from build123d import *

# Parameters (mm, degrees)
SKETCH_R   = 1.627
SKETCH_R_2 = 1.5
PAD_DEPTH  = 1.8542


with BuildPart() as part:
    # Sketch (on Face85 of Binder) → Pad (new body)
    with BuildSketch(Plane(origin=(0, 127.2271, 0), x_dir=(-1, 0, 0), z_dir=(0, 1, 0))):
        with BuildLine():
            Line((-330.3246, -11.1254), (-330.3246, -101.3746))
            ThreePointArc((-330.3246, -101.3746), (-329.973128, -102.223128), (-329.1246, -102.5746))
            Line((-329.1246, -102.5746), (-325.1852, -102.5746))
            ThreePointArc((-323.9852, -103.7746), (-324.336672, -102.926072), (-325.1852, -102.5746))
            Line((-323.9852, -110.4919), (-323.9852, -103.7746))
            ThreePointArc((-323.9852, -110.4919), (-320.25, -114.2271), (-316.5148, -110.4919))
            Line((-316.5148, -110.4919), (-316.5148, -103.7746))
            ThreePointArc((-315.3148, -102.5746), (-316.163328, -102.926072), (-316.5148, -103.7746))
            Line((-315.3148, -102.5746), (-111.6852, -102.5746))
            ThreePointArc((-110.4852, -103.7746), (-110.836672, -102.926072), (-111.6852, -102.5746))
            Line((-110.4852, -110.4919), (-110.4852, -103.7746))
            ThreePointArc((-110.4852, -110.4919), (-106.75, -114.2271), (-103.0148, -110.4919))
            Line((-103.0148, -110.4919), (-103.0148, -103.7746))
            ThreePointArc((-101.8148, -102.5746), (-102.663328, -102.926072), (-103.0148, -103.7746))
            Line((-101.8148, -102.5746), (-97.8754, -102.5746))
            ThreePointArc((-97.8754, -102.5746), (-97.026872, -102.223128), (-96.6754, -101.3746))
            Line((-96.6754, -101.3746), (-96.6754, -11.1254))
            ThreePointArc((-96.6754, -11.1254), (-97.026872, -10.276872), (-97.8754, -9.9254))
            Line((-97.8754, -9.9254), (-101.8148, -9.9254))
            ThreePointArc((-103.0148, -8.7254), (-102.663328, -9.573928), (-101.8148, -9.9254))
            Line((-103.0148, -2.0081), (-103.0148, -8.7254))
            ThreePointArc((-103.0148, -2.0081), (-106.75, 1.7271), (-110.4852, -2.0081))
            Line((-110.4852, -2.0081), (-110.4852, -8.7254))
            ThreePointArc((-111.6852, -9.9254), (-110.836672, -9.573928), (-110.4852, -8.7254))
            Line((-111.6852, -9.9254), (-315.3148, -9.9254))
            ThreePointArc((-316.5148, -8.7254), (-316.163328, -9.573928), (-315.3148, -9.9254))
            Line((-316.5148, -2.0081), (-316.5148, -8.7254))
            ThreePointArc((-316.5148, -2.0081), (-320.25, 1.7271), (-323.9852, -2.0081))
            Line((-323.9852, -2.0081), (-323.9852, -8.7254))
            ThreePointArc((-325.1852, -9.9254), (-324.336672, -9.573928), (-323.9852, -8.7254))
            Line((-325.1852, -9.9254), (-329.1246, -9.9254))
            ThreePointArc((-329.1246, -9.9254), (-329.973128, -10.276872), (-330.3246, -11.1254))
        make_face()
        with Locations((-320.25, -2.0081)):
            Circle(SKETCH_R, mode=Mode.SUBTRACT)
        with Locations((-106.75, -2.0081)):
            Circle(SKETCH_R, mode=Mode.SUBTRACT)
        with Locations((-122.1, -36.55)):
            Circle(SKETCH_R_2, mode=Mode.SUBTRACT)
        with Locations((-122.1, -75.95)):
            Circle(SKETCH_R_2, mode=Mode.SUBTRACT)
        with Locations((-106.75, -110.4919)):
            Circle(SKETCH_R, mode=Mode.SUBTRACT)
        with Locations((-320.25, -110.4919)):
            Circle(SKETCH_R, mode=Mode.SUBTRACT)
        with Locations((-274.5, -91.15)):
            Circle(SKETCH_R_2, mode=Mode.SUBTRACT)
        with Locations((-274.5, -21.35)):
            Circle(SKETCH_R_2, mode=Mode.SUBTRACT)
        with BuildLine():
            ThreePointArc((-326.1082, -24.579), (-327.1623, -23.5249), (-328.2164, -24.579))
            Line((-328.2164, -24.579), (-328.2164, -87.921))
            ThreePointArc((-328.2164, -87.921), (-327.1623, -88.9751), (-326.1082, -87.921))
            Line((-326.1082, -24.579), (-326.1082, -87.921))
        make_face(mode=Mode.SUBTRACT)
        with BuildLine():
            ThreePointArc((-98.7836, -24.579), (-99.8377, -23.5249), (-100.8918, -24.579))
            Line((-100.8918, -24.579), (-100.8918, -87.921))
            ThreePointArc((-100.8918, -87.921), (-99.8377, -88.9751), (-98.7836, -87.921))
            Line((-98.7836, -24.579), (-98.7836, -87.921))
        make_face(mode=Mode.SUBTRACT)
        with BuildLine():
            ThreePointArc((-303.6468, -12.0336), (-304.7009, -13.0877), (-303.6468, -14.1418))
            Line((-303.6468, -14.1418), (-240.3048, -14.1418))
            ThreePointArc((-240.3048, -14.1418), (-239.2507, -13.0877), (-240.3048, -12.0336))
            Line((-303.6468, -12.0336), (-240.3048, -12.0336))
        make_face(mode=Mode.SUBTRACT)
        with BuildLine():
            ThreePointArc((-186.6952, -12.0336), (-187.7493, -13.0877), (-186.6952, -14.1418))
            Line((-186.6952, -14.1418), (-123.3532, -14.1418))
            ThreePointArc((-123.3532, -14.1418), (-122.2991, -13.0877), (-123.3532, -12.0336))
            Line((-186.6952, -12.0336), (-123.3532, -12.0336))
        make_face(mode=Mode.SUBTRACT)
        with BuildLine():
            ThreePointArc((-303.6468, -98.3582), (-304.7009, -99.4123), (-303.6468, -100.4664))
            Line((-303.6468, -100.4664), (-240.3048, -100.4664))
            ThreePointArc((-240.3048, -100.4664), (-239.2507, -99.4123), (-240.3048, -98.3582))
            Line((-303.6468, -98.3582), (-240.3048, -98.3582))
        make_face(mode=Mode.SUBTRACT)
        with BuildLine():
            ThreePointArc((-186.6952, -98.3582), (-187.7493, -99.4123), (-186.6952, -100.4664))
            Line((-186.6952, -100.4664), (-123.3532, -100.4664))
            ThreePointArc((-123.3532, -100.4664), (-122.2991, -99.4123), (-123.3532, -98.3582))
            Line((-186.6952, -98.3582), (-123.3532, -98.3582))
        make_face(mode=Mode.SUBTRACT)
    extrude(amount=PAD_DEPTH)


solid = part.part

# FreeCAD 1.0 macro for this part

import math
import FreeCAD as App
import Part
import Sketcher
Q = App.Units.Quantity

doc = App.newDocument("Part")
params = doc.addObject("Spreadsheet::Sheet", "Params")
for row, (alias, value) in enumerate([
    ("sketch1_diameter", "3 mm"),
    ("sketch1_radius", "1.2 mm"),
    ("pad1_length", "1.8542 mm"),
], start=1):
    params.set(f"A{row}", alias)
    params.set(f"B{row}", "=" + value)
    params.setAlias(f"B{row}", alias)

body = doc.addObject("PartDesign::Body", "Body")

# Sketch on XZ plane
sketch1 = body.newObject("Sketcher::SketchObject", "Sketch")
sketch1.AttachmentSupport = (doc.getObject("XZ_Plane"), [""])
sketch1.MapMode = "FlatFace"
sketch1.AttachmentOffset = App.Placement(App.Vector(0, 0, -127.2271), App.Rotation())
sketch1.addGeometry(Part.LineSegment(App.Vector(330.3, -11.1, 0), App.Vector(330.3, -101.4, 0)), False)
sketch1.addGeometry(Part.ArcOfCircle(Part.Circle(App.Vector(329.1, -101.4, 0), App.Vector(0, 0, 1), 1.2), math.radians(-90), math.radians(0)), False)
sketch1.addGeometry(Part.LineSegment(App.Vector(329.1, -102.6, 0), App.Vector(325.2, -102.6, 0)), False)
sketch1.addGeometry(Part.ArcOfCircle(Part.Circle(App.Vector(325.2, -103.8, 0), App.Vector(0, 0, 1), 1.2), math.radians(90), math.radians(180)), False)
sketch1.addGeometry(Part.LineSegment(App.Vector(324, -103.8, 0), App.Vector(324, -110.5, 0)), False)
sketch1.addGeometry(Part.ArcOfCircle(Part.Circle(App.Vector(320.2, -110.5, 0), App.Vector(0, 0, 1), 3.7), math.radians(180), math.radians(360)), False)
sketch1.addGeometry(Part.LineSegment(App.Vector(316.5, -110.5, 0), App.Vector(316.5, -103.8, 0)), False)
sketch1.addGeometry(Part.ArcOfCircle(Part.Circle(App.Vector(315.3, -103.8, 0), App.Vector(0, 0, 1), 1.2), math.radians(0), math.radians(90)), False)
sketch1.addGeometry(Part.LineSegment(App.Vector(315.3, -102.6, 0), App.Vector(111.7, -102.6, 0)), False)
sketch1.addGeometry(Part.ArcOfCircle(Part.Circle(App.Vector(111.7, -103.8, 0), App.Vector(0, 0, 1), 1.2), math.radians(90), math.radians(180)), False)
sketch1.addGeometry(Part.LineSegment(App.Vector(110.5, -103.8, 0), App.Vector(110.5, -110.5, 0)), False)
sketch1.addGeometry(Part.ArcOfCircle(Part.Circle(App.Vector(106.8, -110.5, 0), App.Vector(0, 0, 1), 3.7), math.radians(180), math.radians(360)), False)
sketch1.addGeometry(Part.LineSegment(App.Vector(103, -110.5, 0), App.Vector(103, -103.8, 0)), False)
sketch1.addGeometry(Part.ArcOfCircle(Part.Circle(App.Vector(101.8, -103.8, 0), App.Vector(0, 0, 1), 1.2), math.radians(0), math.radians(90)), False)
sketch1.addGeometry(Part.LineSegment(App.Vector(101.8, -102.6, 0), App.Vector(97.9, -102.6, 0)), False)
sketch1.addGeometry(Part.ArcOfCircle(Part.Circle(App.Vector(97.9, -101.4, 0), App.Vector(0, 0, 1), 1.2), math.radians(-180), math.radians(-90)), False)
sketch1.addGeometry(Part.LineSegment(App.Vector(96.7, -101.4, 0), App.Vector(96.7, -11.1, 0)), False)
sketch1.addGeometry(Part.ArcOfCircle(Part.Circle(App.Vector(97.9, -11.1, 0), App.Vector(0, 0, 1), 1.2), math.radians(90), math.radians(180)), False)
sketch1.addGeometry(Part.LineSegment(App.Vector(97.9, -9.9, 0), App.Vector(101.8, -9.9, 0)), False)
sketch1.addGeometry(Part.ArcOfCircle(Part.Circle(App.Vector(101.8, -8.7, 0), App.Vector(0, 0, 1), 1.2), math.radians(-90), math.radians(0)), False)
sketch1.addGeometry(Part.LineSegment(App.Vector(103, -8.7, 0), App.Vector(103, -2, 0)), False)
sketch1.addGeometry(Part.ArcOfCircle(Part.Circle(App.Vector(106.8, -2, 0), App.Vector(0, 0, 1), 3.7), math.radians(0), math.radians(180)), False)
sketch1.addGeometry(Part.LineSegment(App.Vector(110.5, -2, 0), App.Vector(110.5, -8.7, 0)), False)
sketch1.addGeometry(Part.ArcOfCircle(Part.Circle(App.Vector(111.7, -8.7, 0), App.Vector(0, 0, 1), 1.2), math.radians(-180), math.radians(-90)), False)
sketch1.addGeometry(Part.LineSegment(App.Vector(111.7, -9.9, 0), App.Vector(315.3, -9.9, 0)), False)
sketch1.addGeometry(Part.ArcOfCircle(Part.Circle(App.Vector(315.3, -8.7, 0), App.Vector(0, 0, 1), 1.2), math.radians(-90), math.radians(0)), False)
sketch1.addGeometry(Part.LineSegment(App.Vector(316.5, -8.7, 0), App.Vector(316.5, -2, 0)), False)
sketch1.addGeometry(Part.ArcOfCircle(Part.Circle(App.Vector(320.2, -2, 0), App.Vector(0, 0, 1), 3.7), math.radians(0), math.radians(180)), False)
sketch1.addGeometry(Part.LineSegment(App.Vector(324, -2, 0), App.Vector(324, -8.7, 0)), False)
sketch1.addGeometry(Part.ArcOfCircle(Part.Circle(App.Vector(325.2, -8.7, 0), App.Vector(0, 0, 1), 1.2), math.radians(-180), math.radians(-90)), False)
sketch1.addGeometry(Part.LineSegment(App.Vector(325.2, -9.9, 0), App.Vector(329.1, -9.9, 0)), False)
sketch1.addGeometry(Part.ArcOfCircle(Part.Circle(App.Vector(329.1, -11.1, 0), App.Vector(0, 0, 1), 1.2), math.radians(0), math.radians(90)), False)
sketch1.addGeometry(Part.Circle(App.Vector(320.2, -110.5, 0), App.Vector(0, 0, 1), 1.6), False)
sketch1.addGeometry(Part.ArcOfCircle(Part.Circle(App.Vector(303.6, -99.4, 0), App.Vector(0, 0, 1), 1.1), math.radians(-90), math.radians(90)), False)
sketch1.addGeometry(Part.LineSegment(App.Vector(303.6, -98.4, 0), App.Vector(240.3, -98.4, 0)), False)
sketch1.addGeometry(Part.ArcOfCircle(Part.Circle(App.Vector(240.3, -99.4, 0), App.Vector(0, 0, 1), 1.1), math.radians(90), math.radians(270)), False)
sketch1.addGeometry(Part.LineSegment(App.Vector(240.3, -100.5, 0), App.Vector(303.6, -100.5, 0)), False)
sketch1.addGeometry(Part.Circle(App.Vector(274.5, -91.2, 0), App.Vector(0, 0, 1), 1.5), False)
sketch1.addGeometry(Part.ArcOfCircle(Part.Circle(App.Vector(186.7, -99.4, 0), App.Vector(0, 0, 1), 1.1), math.radians(-90), math.radians(90)), False)
sketch1.addGeometry(Part.LineSegment(App.Vector(186.7, -98.4, 0), App.Vector(123.4, -98.4, 0)), False)
sketch1.addGeometry(Part.ArcOfCircle(Part.Circle(App.Vector(123.4, -99.4, 0), App.Vector(0, 0, 1), 1.1), math.radians(90), math.radians(270)), False)
sketch1.addGeometry(Part.LineSegment(App.Vector(123.4, -100.5, 0), App.Vector(186.7, -100.5, 0)), False)
sketch1.addGeometry(Part.Circle(App.Vector(106.8, -110.5, 0), App.Vector(0, 0, 1), 1.6), False)
sketch1.addGeometry(Part.Circle(App.Vector(122.1, -76, 0), App.Vector(0, 0, 1), 1.5), False)
sketch1.addGeometry(Part.ArcOfCircle(Part.Circle(App.Vector(327.2, -24.6, 0), App.Vector(0, 0, 1), 1.1), math.radians(0), math.radians(180)), False)
sketch1.addGeometry(Part.LineSegment(App.Vector(326.1, -24.6, 0), App.Vector(326.1, -87.9, 0)), False)
sketch1.addGeometry(Part.ArcOfCircle(Part.Circle(App.Vector(327.2, -87.9, 0), App.Vector(0, 0, 1), 1.1), math.radians(180), math.radians(360)), False)
sketch1.addGeometry(Part.LineSegment(App.Vector(328.2, -87.9, 0), App.Vector(328.2, -24.6, 0)), False)
sketch1.addGeometry(Part.Circle(App.Vector(274.5, -21.4, 0), App.Vector(0, 0, 1), 1.5), False)
sketch1.addGeometry(Part.Circle(App.Vector(320.2, -2, 0), App.Vector(0, 0, 1), 1.6), False)
sketch1.addGeometry(Part.ArcOfCircle(Part.Circle(App.Vector(303.6, -13.1, 0), App.Vector(0, 0, 1), 1.1), math.radians(-90), math.radians(90)), False)
sketch1.addGeometry(Part.LineSegment(App.Vector(303.6, -12, 0), App.Vector(240.3, -12, 0)), False)
sketch1.addGeometry(Part.ArcOfCircle(Part.Circle(App.Vector(240.3, -13.1, 0), App.Vector(0, 0, 1), 1.1), math.radians(90), math.radians(270)), False)
sketch1.addGeometry(Part.LineSegment(App.Vector(240.3, -14.1, 0), App.Vector(303.6, -14.1, 0)), False)
sketch1.addGeometry(Part.ArcOfCircle(Part.Circle(App.Vector(99.8, -24.6, 0), App.Vector(0, 0, 1), 1.1), math.radians(0), math.radians(180)), False)
sketch1.addGeometry(Part.LineSegment(App.Vector(98.8, -24.6, 0), App.Vector(98.8, -87.9, 0)), False)
sketch1.addGeometry(Part.ArcOfCircle(Part.Circle(App.Vector(99.8, -87.9, 0), App.Vector(0, 0, 1), 1.1), math.radians(180), math.radians(360)), False)
sketch1.addGeometry(Part.LineSegment(App.Vector(100.9, -87.9, 0), App.Vector(100.9, -24.6, 0)), False)
sketch1.addGeometry(Part.Circle(App.Vector(122.1, -36.5, 0), App.Vector(0, 0, 1), 1.5), False)
sketch1.addGeometry(Part.ArcOfCircle(Part.Circle(App.Vector(186.7, -13.1, 0), App.Vector(0, 0, 1), 1.1), math.radians(-90), math.radians(90)), False)
sketch1.addGeometry(Part.LineSegment(App.Vector(186.7, -12, 0), App.Vector(123.4, -12, 0)), False)
sketch1.addGeometry(Part.ArcOfCircle(Part.Circle(App.Vector(123.4, -13.1, 0), App.Vector(0, 0, 1), 1.1), math.radians(90), math.radians(270)), False)
sketch1.addGeometry(Part.LineSegment(App.Vector(123.4, -14.1, 0), App.Vector(186.7, -14.1, 0)), False)
sketch1.addGeometry(Part.Circle(App.Vector(106.8, -2, 0), App.Vector(0, 0, 1), 1.6), False)
sketch1.addConstraint(Sketcher.Constraint("Tangent", 0, 2, 1, 2))
sketch1.addConstraint(Sketcher.Constraint("Tangent", 1, 1, 2, 1))
sketch1.addConstraint(Sketcher.Constraint("Tangent", 2, 2, 3, 1))
sketch1.addConstraint(Sketcher.Constraint("Tangent", 3, 2, 4, 1))
sketch1.addConstraint(Sketcher.Constraint("Tangent", 4, 2, 5, 2))
sketch1.addConstraint(Sketcher.Constraint("Tangent", 5, 1, 6, 1))
sketch1.addConstraint(Sketcher.Constraint("Tangent", 6, 2, 7, 1))
sketch1.addConstraint(Sketcher.Constraint("Tangent", 7, 2, 8, 1))
sketch1.addConstraint(Sketcher.Constraint("Tangent", 8, 2, 9, 1))
sketch1.addConstraint(Sketcher.Constraint("Tangent", 9, 2, 10, 1))
sketch1.addConstraint(Sketcher.Constraint("Tangent", 10, 2, 11, 2))
sketch1.addConstraint(Sketcher.Constraint("Tangent", 11, 1, 12, 1))
sketch1.addConstraint(Sketcher.Constraint("Tangent", 12, 2, 13, 1))
sketch1.addConstraint(Sketcher.Constraint("Tangent", 13, 2, 14, 1))
sketch1.addConstraint(Sketcher.Constraint("Tangent", 14, 2, 15, 2))
sketch1.addConstraint(Sketcher.Constraint("Tangent", 15, 1, 16, 1))
sketch1.addConstraint(Sketcher.Constraint("Tangent", 16, 2, 17, 2))
sketch1.addConstraint(Sketcher.Constraint("Tangent", 17, 1, 18, 1))
sketch1.addConstraint(Sketcher.Constraint("Tangent", 18, 2, 19, 1))
sketch1.addConstraint(Sketcher.Constraint("Tangent", 19, 2, 20, 1))
sketch1.addConstraint(Sketcher.Constraint("Tangent", 20, 2, 21, 2))
sketch1.addConstraint(Sketcher.Constraint("Tangent", 21, 1, 22, 1))
sketch1.addConstraint(Sketcher.Constraint("Tangent", 22, 2, 23, 1))
sketch1.addConstraint(Sketcher.Constraint("Tangent", 23, 2, 24, 1))
sketch1.addConstraint(Sketcher.Constraint("Tangent", 24, 2, 25, 1))
sketch1.addConstraint(Sketcher.Constraint("Tangent", 25, 2, 26, 1))
sketch1.addConstraint(Sketcher.Constraint("Tangent", 26, 2, 27, 2))
sketch1.addConstraint(Sketcher.Constraint("Tangent", 27, 1, 28, 1))
sketch1.addConstraint(Sketcher.Constraint("Tangent", 28, 2, 29, 1))
sketch1.addConstraint(Sketcher.Constraint("Tangent", 29, 2, 30, 1))
sketch1.addConstraint(Sketcher.Constraint("Tangent", 30, 2, 31, 2))
sketch1.addConstraint(Sketcher.Constraint("Tangent", 31, 1, 0, 1))
sketch1.addConstraint(Sketcher.Constraint("Tangent", 33, 2, 34, 1))
sketch1.addConstraint(Sketcher.Constraint("Tangent", 34, 2, 35, 1))
sketch1.addConstraint(Sketcher.Constraint("Tangent", 35, 2, 36, 1))
sketch1.addConstraint(Sketcher.Constraint("Tangent", 36, 2, 33, 1))
sketch1.addConstraint(Sketcher.Constraint("Tangent", 38, 2, 39, 1))
sketch1.addConstraint(Sketcher.Constraint("Tangent", 39, 2, 40, 1))
sketch1.addConstraint(Sketcher.Constraint("Tangent", 40, 2, 41, 1))
sketch1.addConstraint(Sketcher.Constraint("Tangent", 41, 2, 38, 1))
sketch1.addConstraint(Sketcher.Constraint("Tangent", 44, 2, 45, 1))
sketch1.addConstraint(Sketcher.Constraint("Tangent", 45, 2, 46, 1))
sketch1.addConstraint(Sketcher.Constraint("Tangent", 46, 2, 47, 1))
sketch1.addConstraint(Sketcher.Constraint("Tangent", 47, 2, 44, 1))
sketch1.addConstraint(Sketcher.Constraint("Tangent", 50, 2, 51, 1))
sketch1.addConstraint(Sketcher.Constraint("Tangent", 51, 2, 52, 1))
sketch1.addConstraint(Sketcher.Constraint("Tangent", 52, 2, 53, 1))
sketch1.addConstraint(Sketcher.Constraint("Tangent", 53, 2, 50, 1))
sketch1.addConstraint(Sketcher.Constraint("Tangent", 54, 2, 55, 1))
sketch1.addConstraint(Sketcher.Constraint("Tangent", 55, 2, 56, 1))
sketch1.addConstraint(Sketcher.Constraint("Tangent", 56, 2, 57, 1))
sketch1.addConstraint(Sketcher.Constraint("Tangent", 57, 2, 54, 1))
sketch1.addConstraint(Sketcher.Constraint("Tangent", 59, 2, 60, 1))
sketch1.addConstraint(Sketcher.Constraint("Tangent", 60, 2, 61, 1))
sketch1.addConstraint(Sketcher.Constraint("Tangent", 61, 2, 62, 1))
sketch1.addConstraint(Sketcher.Constraint("Tangent", 62, 2, 59, 1))
sketch1.addConstraint(Sketcher.Constraint("Vertical", 0))
sketch1.addConstraint(Sketcher.Constraint("Horizontal", 2))
sketch1.addConstraint(Sketcher.Constraint("Vertical", 4))
sketch1.addConstraint(Sketcher.Constraint("Vertical", 6))
sketch1.addConstraint(Sketcher.Constraint("Horizontal", 8))
sketch1.addConstraint(Sketcher.Constraint("Vertical", 10))
sketch1.addConstraint(Sketcher.Constraint("Vertical", 12))
sketch1.addConstraint(Sketcher.Constraint("Horizontal", 14))
sketch1.addConstraint(Sketcher.Constraint("Vertical", 16))
sketch1.addConstraint(Sketcher.Constraint("Horizontal", 18))
sketch1.addConstraint(Sketcher.Constraint("Vertical", 20))
sketch1.addConstraint(Sketcher.Constraint("Vertical", 22))
sketch1.addConstraint(Sketcher.Constraint("Horizontal", 24))
sketch1.addConstraint(Sketcher.Constraint("Vertical", 26))
sketch1.addConstraint(Sketcher.Constraint("Vertical", 28))
sketch1.addConstraint(Sketcher.Constraint("Horizontal", 30))
sketch1.addConstraint(Sketcher.Constraint("Horizontal", 34))
sketch1.addConstraint(Sketcher.Constraint("Horizontal", 36))
sketch1.addConstraint(Sketcher.Constraint("Horizontal", 39))
sketch1.addConstraint(Sketcher.Constraint("Horizontal", 41))
sketch1.addConstraint(Sketcher.Constraint("Vertical", 45))
sketch1.addConstraint(Sketcher.Constraint("Vertical", 47))
sketch1.addConstraint(Sketcher.Constraint("Horizontal", 51))
sketch1.addConstraint(Sketcher.Constraint("Horizontal", 53))
sketch1.addConstraint(Sketcher.Constraint("Vertical", 55))
sketch1.addConstraint(Sketcher.Constraint("Vertical", 57))
sketch1.addConstraint(Sketcher.Constraint("Horizontal", 60))
sketch1.addConstraint(Sketcher.Constraint("Horizontal", 62))
sketch1.addConstraint(Sketcher.Constraint("Coincident", 32, 3, 5, 3))
sketch1.addConstraint(Sketcher.Constraint("Coincident", 42, 3, 11, 3))
sketch1.addConstraint(Sketcher.Constraint("Coincident", 49, 3, 27, 3))
sketch1.addConstraint(Sketcher.Constraint("Coincident", 63, 3, 21, 3))
sketch1.addConstraint(Sketcher.Constraint("Equal", 1, 3))
sketch1.addConstraint(Sketcher.Constraint("Equal", 3, 7))
sketch1.addConstraint(Sketcher.Constraint("Equal", 7, 9))
sketch1.addConstraint(Sketcher.Constraint("Equal", 5, 11))
sketch1.addConstraint(Sketcher.Constraint("Equal", 9, 13))
sketch1.addConstraint(Sketcher.Constraint("Equal", 13, 15))
sketch1.addConstraint(Sketcher.Constraint("Equal", 15, 17))
sketch1.addConstraint(Sketcher.Constraint("Equal", 17, 19))
sketch1.addConstraint(Sketcher.Constraint("Equal", 11, 21))
sketch1.addConstraint(Sketcher.Constraint("Equal", 19, 23))
sketch1.addConstraint(Sketcher.Constraint("Equal", 23, 25))
sketch1.addConstraint(Sketcher.Constraint("Equal", 21, 27))
sketch1.addConstraint(Sketcher.Constraint("Equal", 25, 29))
sketch1.addConstraint(Sketcher.Constraint("Equal", 29, 31))
sketch1.addConstraint(Sketcher.Constraint("Equal", 35, 38))
sketch1.addConstraint(Sketcher.Constraint("Equal", 32, 42))
sketch1.addConstraint(Sketcher.Constraint("Equal", 37, 43))
sketch1.addConstraint(Sketcher.Constraint("Equal", 40, 44))
sketch1.addConstraint(Sketcher.Constraint("Equal", 43, 48))
sketch1.addConstraint(Sketcher.Constraint("Equal", 42, 49))
sketch1.addConstraint(Sketcher.Constraint("Equal", 46, 50))
sketch1.addConstraint(Sketcher.Constraint("Equal", 52, 54))
sketch1.addConstraint(Sketcher.Constraint("Equal", 48, 58))
sketch1.addConstraint(Sketcher.Constraint("Equal", 56, 59))
sketch1.addConstraint(Sketcher.Constraint("Equal", 49, 63))
sketch1.addConstraint(Sketcher.Constraint("Horizontal", 3, 3, 7, 3))
sketch1.addConstraint(Sketcher.Constraint("Horizontal", 5, 3, 11, 3))
sketch1.addConstraint(Sketcher.Constraint("Horizontal", 9, 3, 13, 3))
sketch1.addConstraint(Sketcher.Constraint("Horizontal", 19, 3, 23, 3))
sketch1.addConstraint(Sketcher.Constraint("Horizontal", 21, 3, 27, 3))
sketch1.addConstraint(Sketcher.Constraint("Horizontal", 25, 3, 29, 3))
sketch1.addConstraint(Sketcher.Constraint("Horizontal", 35, 3, 38, 3))
sketch1.addConstraint(Sketcher.Constraint("Horizontal", 44, 3, 54, 3))
sketch1.addConstraint(Sketcher.Constraint("Horizontal", 46, 3, 56, 3))
sketch1.addConstraint(Sketcher.Constraint("Horizontal", 52, 3, 59, 3))
sketch1.addConstraint(Sketcher.Constraint("Vertical", 13, 3, 19, 3))
sketch1.addConstraint(Sketcher.Constraint("Vertical", 7, 3, 25, 3))
sketch1.addConstraint(Sketcher.Constraint("Vertical", 37, 3, 48, 3))
sketch1.addConstraint(Sketcher.Constraint("Vertical", 33, 3, 50, 3))
sketch1.addConstraint(Sketcher.Constraint("Vertical", 35, 3, 52, 3))
sketch1.addConstraint(Sketcher.Constraint("Vertical", 43, 3, 58, 3))
sketch1.addConstraint(Sketcher.Constraint("Vertical", 38, 3, 59, 3))
sketch1.addConstraint(Sketcher.Constraint("Vertical", 40, 3, 61, 3))
sketch1.addConstraint(Sketcher.Constraint("Equal", 2, 14))
sketch1.addConstraint(Sketcher.Constraint("Equal", 36, 39))
sketch1.addConstraint(Sketcher.Constraint("Equal", 12, 20))
sketch1.addConstraint(Sketcher.Constraint("Equal", 62, 45))
sketch1.addConstraint(Sketcher.Constraint("Diameter", 37, Q("3 mm")))
sketch1.addConstraint(Sketcher.Constraint("Radius", 1, Q("1.2 mm")))
sketch1.addConstraint(Sketcher.Constraint("Diameter", 32, Q("3.254 mm")))
sketch1.addConstraint(Sketcher.Constraint("DistanceX", -1, 1, 37, 3, Q("274.5 mm")))
sketch1.addConstraint(Sketcher.Constraint("DistanceX", -1, 1, 43, 3, Q("122.1 mm")))
sketch1.addConstraint(Sketcher.Constraint("Radius", 5, Q("3.7352 mm")))
sketch1.addConstraint(Sketcher.Constraint("Radius", 33, Q("1.0541 mm")))
sketch1.addConstraint(Sketcher.Constraint("DistanceX", 34, 2, 34, 1, Q("63.342 mm")))
sketch1.addConstraint(Sketcher.Constraint("DistanceX", -1, 1, 5, 3, Q("320.25 mm")))
sketch1.addConstraint(Sketcher.Constraint("DistanceX", -1, 1, 11, 3, Q("106.75 mm")))
sketch1.addConstraint(Sketcher.Constraint("DistanceY", 37, 3, -1, 1, Q("91.15 mm")))
sketch1.addConstraint(Sketcher.Constraint("DistanceY", 43, 3, -1, 1, Q("75.95 mm")))
sketch1.addConstraint(Sketcher.Constraint("DistanceY", 48, 3, -1, 1, Q("21.35 mm")))
sketch1.addConstraint(Sketcher.Constraint("DistanceY", 58, 3, -1, 1, Q("36.55 mm")))
sketch1.addConstraint(Sketcher.Constraint("DistanceX", 2, 2, 2, 1, Q("3.9394 mm")))
sketch1.addConstraint(Sketcher.Constraint("DistanceY", 0, 2, 0, 1, Q("90.2492 mm")))
sketch1.addConstraint(Sketcher.Constraint("DistanceY", 4, 2, 4, 1, Q("6.7173 mm")))
sketch1.addConstraint(Sketcher.Constraint("DistanceY", 44, 3, -1, 1, Q("24.579 mm")))
sketch1.addConstraint(Sketcher.Constraint("DistanceY", 1, 3, -1, 1, Q("101.3746 mm")))
sketch1.addConstraint(Sketcher.Constraint("DistanceX", -1, 1, 33, 3, Q("303.6468 mm")))
sketch1.addConstraint(Sketcher.Constraint("DistanceY", 33, 3, -1, 1, Q("99.4123 mm")))
sketch1.addConstraint(Sketcher.Constraint("DistanceX", -1, 1, 38, 3, Q("186.6952 mm")))
sketch1.addConstraint(Sketcher.Constraint("DistanceX", -1, 1, 44, 3, Q("327.1623 mm")))
sketch1.addConstraint(Sketcher.Constraint("DistanceY", 50, 3, -1, 1, Q("13.0877 mm")))
sketch1.addConstraint(Sketcher.Constraint("DistanceX", -1, 1, 54, 3, Q("99.8377 mm")))
sketch1.setExpression("Constraints[135]", "Params.sketch1_diameter")
sketch1.setExpression("Constraints[136]", "Params.sketch1_radius")
pad1 = body.newObject("PartDesign::Pad", "Pad")
pad1.Profile = sketch1
pad1.setExpression("Length", "Params.pad1_length")
pad1.Reversed = True

doc.recompute()
